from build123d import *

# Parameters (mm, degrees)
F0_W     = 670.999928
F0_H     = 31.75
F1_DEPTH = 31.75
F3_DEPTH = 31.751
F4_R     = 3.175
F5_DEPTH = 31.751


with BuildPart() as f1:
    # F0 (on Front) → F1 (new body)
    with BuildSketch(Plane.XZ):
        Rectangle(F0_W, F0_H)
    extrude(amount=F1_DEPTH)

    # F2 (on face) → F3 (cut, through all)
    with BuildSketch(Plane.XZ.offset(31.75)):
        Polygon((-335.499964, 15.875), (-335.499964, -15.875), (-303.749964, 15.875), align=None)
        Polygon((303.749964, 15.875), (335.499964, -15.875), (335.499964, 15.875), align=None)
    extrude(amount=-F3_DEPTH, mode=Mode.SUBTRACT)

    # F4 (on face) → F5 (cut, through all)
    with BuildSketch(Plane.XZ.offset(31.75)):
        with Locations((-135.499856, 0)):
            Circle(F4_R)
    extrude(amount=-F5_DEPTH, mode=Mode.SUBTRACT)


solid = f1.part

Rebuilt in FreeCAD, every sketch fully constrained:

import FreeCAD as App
import Part
import Sketcher

V = App.Vector
Q = App.Units.Quantity

doc = App.newDocument("Part")
body = doc.addObject("PartDesign::Body", "Body")

sketch1 = body.newObject("Sketcher::SketchObject", "Sketch")
sketch1.AttachmentSupport = (doc.getObject("XZ_Plane"), [""])
sketch1.MapMode = "FlatFace"
sketch1.addGeometry(Part.LineSegment(V(-335, 16, 0), V(-335, -16, 0)), False)
sketch1.addGeometry(Part.LineSegment(V(-335, -16, 0), V(335, -16, 0)), False)
sketch1.addGeometry(Part.LineSegment(V(335, -16, 0), V(335, 16, 0)), False)
sketch1.addGeometry(Part.LineSegment(V(335, 16, 0), V(-335, 16, 0)), False)
sketch1.addConstraint(Sketcher.Constraint("Coincident", 0, 2, 1, 1))
sketch1.addConstraint(Sketcher.Constraint("Coincident", 1, 2, 2, 1))
sketch1.addConstraint(Sketcher.Constraint("Coincident", 2, 2, 3, 1))
sketch1.addConstraint(Sketcher.Constraint("Coincident", 3, 2, 0, 1))
sketch1.addConstraint(Sketcher.Constraint("Vertical", 0))
sketch1.addConstraint(Sketcher.Constraint("Horizontal", 1))
sketch1.addConstraint(Sketcher.Constraint("Vertical", 2))
sketch1.addConstraint(Sketcher.Constraint("Horizontal", 3))
sketch1.addConstraint(Sketcher.Constraint("Symmetric", 0, 2, 2, 2, -1, 1))
sketch1.addConstraint(Sketcher.Constraint("DistanceY", 0, 2, 0, 1, Q("1.25 in")))
sketch1.addConstraint(Sketcher.Constraint("DistanceX", 1, 1, 1, 2, Q("670.999928 mm")))
pad1 = body.newObject("PartDesign::Pad", "Pad")
pad1.Profile = sketch1
pad1.Length = Q("1.25 in")

sketch2 = body.newObject("Sketcher::SketchObject", "Sketch001")
sketch2.AttachmentSupport = (doc.getObject("XZ_Plane"), [""])
sketch2.MapMode = "FlatFace"
sketch2.AttachmentOffset = App.Placement(V(0, 0, 1.25 * 25.4), App.Rotation())
sketch2.addGeometry(Part.LineSegment(V(-335, 16, 0), V(-335, -16, 0)), False)
sketch2.addGeometry(Part.LineSegment(V(-335, -16, 0), V(-304, 16, 0)), False)
sketch2.addGeometry(Part.LineSegment(V(-304, 16, 0), V(-335, 16, 0)), False)
sketch2.addGeometry(Part.LineSegment(V(304, 16, 0), V(335, -16, 0)), False)
sketch2.addGeometry(Part.LineSegment(V(335, -16, 0), V(335, 16, 0)), False)
sketch2.addGeometry(Part.LineSegment(V(335, 16, 0), V(304, 16, 0)), False)
sketch2.addConstraint(Sketcher.Constraint("Coincident", 0, 2, 1, 1))
sketch2.addConstraint(Sketcher.Constraint("Coincident", 1, 2, 2, 1))
sketch2.addConstraint(Sketcher.Constraint("Coincident", 2, 2, 0, 1))
sketch2.addConstraint(Sketcher.Constraint("Coincident", 3, 2, 4, 1))
sketch2.addConstraint(Sketcher.Constraint("Coincident", 4, 2, 5, 1))
sketch2.addConstraint(Sketcher.Constraint("Coincident", 5, 2, 3, 1))
sketch2.addConstraint(Sketcher.Constraint("Vertical", 0))
sketch2.addConstraint(Sketcher.Constraint("Horizontal", 2))
sketch2.addConstraint(Sketcher.Constraint("Vertical", 4))
sketch2.addConstraint(Sketcher.Constraint("Horizontal", 5))
sketch2.addConstraint(Sketcher.Constraint("Symmetric", 2, 2, 3, 2, -1, 1))
sketch2.addConstraint(Sketcher.Constraint("Symmetric", 1, 2, 5, 2, -2))
sketch2.addConstraint(Sketcher.Constraint("Perpendicular", 1, 3))
sketch2.addConstraint(Sketcher.Constraint("Horizontal", 0, 2, 3, 2))
sketch2.addConstraint(Sketcher.Constraint("DistanceX", 2, 2, 2, 1, Q("1.25 in")))
sketch2.addConstraint(Sketcher.Constraint("DistanceX", 1, 2, 3, 2, Q("639.249928 mm")))
pocket1 = body.newObject("PartDesign::Pocket", "Pocket")
pocket1.Profile = sketch2
pocket1.Type = "ThroughAll"

sketch3 = body.newObject("Sketcher::SketchObject", "Sketch002")
sketch3.AttachmentSupport = (doc.getObject("XZ_Plane"), [""])
sketch3.MapMode = "FlatFace"
sketch3.AttachmentOffset = App.Placement(V(0, 0, 1.25 * 25.4), App.Rotation())
sketch3.addGeometry(Part.Circle(V(-135.499856, 0, 0), V(0, 0, 1), 3.175), False)
sketch3.addConstraint(Sketcher.Constraint("PointOnObject", 0, 3, -1))
sketch3.addConstraint(Sketcher.Constraint("Diameter", 0, Q("0.25 in")))
sketch3.addConstraint(Sketcher.Constraint("DistanceX", 0, 3, -1, 1, Q("135.499856 mm")))
pocket2 = body.newObject("PartDesign::Pocket", "Pocket001")
pocket2.Profile = sketch3
pocket2.Type = "ThroughAll"

doc.recompute()
